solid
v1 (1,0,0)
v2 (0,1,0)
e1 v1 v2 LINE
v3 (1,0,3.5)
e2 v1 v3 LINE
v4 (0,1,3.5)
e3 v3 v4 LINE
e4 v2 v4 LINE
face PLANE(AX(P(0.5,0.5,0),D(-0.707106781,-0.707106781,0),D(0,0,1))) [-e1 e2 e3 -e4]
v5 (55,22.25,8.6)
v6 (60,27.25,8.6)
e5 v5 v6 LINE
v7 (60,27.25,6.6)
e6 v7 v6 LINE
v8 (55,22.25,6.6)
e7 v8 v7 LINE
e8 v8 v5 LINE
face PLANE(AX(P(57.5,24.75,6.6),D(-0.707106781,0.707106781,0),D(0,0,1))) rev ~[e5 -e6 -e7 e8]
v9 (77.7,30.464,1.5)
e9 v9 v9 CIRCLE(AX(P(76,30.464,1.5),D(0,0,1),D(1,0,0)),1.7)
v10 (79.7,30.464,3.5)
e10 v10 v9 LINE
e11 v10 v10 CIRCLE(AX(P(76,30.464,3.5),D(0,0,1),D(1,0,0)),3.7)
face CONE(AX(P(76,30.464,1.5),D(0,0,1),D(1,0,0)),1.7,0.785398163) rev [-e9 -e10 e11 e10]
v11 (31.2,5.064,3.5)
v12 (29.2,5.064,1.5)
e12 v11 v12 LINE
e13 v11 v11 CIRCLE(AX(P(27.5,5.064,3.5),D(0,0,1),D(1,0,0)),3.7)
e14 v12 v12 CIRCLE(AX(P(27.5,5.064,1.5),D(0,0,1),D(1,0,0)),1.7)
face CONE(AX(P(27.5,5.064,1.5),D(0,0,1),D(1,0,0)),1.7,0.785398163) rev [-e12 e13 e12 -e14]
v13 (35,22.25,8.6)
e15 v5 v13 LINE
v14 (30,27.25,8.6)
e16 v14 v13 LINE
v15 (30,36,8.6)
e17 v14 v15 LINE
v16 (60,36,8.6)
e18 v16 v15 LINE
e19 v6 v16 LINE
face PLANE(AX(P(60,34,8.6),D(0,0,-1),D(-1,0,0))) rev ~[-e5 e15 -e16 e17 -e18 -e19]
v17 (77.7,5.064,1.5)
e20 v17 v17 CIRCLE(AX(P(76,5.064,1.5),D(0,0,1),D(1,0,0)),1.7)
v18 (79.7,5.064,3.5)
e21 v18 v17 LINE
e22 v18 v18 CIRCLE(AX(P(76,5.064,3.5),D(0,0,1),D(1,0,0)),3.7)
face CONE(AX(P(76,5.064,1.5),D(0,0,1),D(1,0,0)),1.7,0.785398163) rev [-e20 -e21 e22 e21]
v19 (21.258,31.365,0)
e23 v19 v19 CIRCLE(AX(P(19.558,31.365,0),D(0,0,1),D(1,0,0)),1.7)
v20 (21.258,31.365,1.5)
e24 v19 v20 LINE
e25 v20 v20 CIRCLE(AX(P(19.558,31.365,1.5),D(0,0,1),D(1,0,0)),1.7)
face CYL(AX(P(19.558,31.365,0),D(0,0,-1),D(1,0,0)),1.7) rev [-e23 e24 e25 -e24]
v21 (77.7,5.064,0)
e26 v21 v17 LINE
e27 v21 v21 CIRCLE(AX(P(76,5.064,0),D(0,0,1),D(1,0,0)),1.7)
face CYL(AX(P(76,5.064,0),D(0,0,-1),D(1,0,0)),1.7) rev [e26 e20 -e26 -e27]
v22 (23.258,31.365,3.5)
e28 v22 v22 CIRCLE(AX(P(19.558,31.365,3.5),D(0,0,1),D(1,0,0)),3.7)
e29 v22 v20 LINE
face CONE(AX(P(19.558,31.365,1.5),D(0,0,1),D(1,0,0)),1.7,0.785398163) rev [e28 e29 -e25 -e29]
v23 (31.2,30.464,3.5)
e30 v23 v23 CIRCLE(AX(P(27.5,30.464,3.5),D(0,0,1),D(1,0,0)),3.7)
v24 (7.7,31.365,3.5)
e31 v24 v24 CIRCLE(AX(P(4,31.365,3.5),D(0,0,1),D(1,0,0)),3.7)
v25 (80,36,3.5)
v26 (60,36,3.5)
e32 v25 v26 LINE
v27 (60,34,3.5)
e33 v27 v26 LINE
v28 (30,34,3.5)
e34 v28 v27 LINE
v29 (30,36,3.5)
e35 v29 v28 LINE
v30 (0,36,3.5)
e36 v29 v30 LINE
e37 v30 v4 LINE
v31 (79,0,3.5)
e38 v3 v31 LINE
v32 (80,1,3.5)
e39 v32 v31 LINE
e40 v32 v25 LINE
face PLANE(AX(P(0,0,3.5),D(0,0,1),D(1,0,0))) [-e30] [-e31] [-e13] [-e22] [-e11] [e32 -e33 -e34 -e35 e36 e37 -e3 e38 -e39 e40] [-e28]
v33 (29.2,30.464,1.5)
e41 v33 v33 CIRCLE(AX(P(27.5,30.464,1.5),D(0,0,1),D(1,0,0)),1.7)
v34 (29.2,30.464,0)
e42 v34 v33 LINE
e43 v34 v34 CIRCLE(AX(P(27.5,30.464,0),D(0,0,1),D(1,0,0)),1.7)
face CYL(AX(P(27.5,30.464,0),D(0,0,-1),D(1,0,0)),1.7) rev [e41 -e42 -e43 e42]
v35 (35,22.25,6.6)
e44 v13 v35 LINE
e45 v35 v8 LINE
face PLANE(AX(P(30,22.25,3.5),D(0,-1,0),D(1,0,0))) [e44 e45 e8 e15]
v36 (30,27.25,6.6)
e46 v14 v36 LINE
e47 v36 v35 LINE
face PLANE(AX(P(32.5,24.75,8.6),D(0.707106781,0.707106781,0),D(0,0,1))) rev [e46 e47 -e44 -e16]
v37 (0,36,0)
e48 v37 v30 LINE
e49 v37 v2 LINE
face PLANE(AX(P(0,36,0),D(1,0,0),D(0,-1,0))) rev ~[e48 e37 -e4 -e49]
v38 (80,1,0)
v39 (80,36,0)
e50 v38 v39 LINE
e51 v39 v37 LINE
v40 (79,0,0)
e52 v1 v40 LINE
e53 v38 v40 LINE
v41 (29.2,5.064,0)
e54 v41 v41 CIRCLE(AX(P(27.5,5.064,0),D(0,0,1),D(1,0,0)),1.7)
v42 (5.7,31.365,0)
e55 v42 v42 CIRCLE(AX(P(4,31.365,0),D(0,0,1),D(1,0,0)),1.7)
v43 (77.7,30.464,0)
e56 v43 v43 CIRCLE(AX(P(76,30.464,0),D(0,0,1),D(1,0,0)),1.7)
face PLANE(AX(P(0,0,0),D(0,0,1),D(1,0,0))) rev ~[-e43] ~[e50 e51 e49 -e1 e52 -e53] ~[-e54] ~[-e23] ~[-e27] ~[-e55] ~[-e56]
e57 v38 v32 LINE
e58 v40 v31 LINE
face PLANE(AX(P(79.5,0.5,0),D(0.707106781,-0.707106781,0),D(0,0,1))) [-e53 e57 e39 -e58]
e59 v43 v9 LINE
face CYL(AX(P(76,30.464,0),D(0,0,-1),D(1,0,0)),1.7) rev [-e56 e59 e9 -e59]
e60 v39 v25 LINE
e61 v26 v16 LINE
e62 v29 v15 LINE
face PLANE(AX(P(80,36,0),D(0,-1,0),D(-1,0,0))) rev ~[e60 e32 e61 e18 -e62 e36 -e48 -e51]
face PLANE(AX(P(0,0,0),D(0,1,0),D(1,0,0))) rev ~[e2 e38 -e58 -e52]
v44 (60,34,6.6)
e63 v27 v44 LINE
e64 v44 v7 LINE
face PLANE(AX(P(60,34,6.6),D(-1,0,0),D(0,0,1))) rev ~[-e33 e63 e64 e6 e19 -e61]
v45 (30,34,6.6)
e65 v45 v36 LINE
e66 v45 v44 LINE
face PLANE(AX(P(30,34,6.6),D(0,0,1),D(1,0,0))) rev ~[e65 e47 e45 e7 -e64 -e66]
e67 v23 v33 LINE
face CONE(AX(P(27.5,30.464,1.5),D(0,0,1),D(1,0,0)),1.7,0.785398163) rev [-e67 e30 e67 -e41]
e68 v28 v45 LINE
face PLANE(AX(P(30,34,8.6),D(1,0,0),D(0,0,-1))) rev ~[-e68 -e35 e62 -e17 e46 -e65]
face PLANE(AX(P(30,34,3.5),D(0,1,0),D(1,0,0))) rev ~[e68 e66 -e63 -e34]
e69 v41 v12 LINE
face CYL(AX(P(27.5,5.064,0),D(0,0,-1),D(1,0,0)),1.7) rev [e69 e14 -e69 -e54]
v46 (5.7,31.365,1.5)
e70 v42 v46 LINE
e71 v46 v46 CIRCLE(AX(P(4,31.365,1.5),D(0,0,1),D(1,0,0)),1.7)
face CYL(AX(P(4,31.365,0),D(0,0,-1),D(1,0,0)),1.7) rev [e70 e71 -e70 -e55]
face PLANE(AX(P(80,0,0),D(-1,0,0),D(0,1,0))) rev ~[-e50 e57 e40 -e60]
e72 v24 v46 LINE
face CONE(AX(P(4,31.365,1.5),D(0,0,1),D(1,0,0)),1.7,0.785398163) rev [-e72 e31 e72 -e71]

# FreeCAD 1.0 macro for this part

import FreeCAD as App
import Part
import Sketcher
Q = App.Units.Quantity


def edges_at(feature, points):
    """Names of the edges that pass closest to the given points."""
    edges = feature.Shape.Edges
    near = lambda p: min(range(len(edges)), key=lambda i: edges[i].distToShape(Part.Vertex(*p))[0])
    return sorted({f"Edge{near(p) + 1}" for p in points})

doc = App.newDocument("Part")
body = doc.addObject("PartDesign::Body", "Body")

sketch1 = doc.addObject("Sketcher::SketchObject", "Sketch")
body.addObject(sketch1)
sketch1.AttachmentSupport = (doc.XY_Plane, [""])
sketch1.MapMode = "FlatFace"
sketch1.addGeometry(Part.LineSegment(App.Vector(0, 36, 0), App.Vector(0, 0, 0)), False)
sketch1.addGeometry(Part.LineSegment(App.Vector(0, 0, 0), App.Vector(80, 0, 0)), False)
sketch1.addGeometry(Part.LineSegment(App.Vector(80, 0, 0), App.Vector(80, 36, 0)), False)
sketch1.addGeometry(Part.LineSegment(App.Vector(80, 36, 0), App.Vector(0, 36, 0)), False)
sketch1.addGeometry(Part.Circle(App.Vector(27.5, 5.064, 0), App.Vector(0, 0, 1), 1.7), False)
sketch1.addGeometry(Part.Circle(App.Vector(76, 5.064, 0), App.Vector(0, 0, 1), 1.7), False)
sketch1.addGeometry(Part.Circle(App.Vector(4, 31.365, 0), App.Vector(0, 0, 1), 1.7), False)
sketch1.addGeometry(Part.Circle(App.Vector(19.558, 31.365, 0), App.Vector(0, 0, 1), 1.7), False)
sketch1.addGeometry(Part.Circle(App.Vector(27.5, 30.464, 0), App.Vector(0, 0, 1), 1.7), False)
sketch1.addGeometry(Part.Circle(App.Vector(76, 30.464, 0), App.Vector(0, 0, 1), 1.7), False)
sketch1.addConstraint(Sketcher.Constraint("Coincident", 0, 2, 1, 1))
sketch1.addConstraint(Sketcher.Constraint("Coincident", 1, 2, 2, 1))
sketch1.addConstraint(Sketcher.Constraint("Coincident", 2, 2, 3, 1))
sketch1.addConstraint(Sketcher.Constraint("Coincident", 3, 2, 0, 1))
sketch1.addConstraint(Sketcher.Constraint("Vertical", 0))
sketch1.addConstraint(Sketcher.Constraint("Horizontal", 1))
sketch1.addConstraint(Sketcher.Constraint("Vertical", 2))
sketch1.addConstraint(Sketcher.Constraint("Horizontal", 3))
sketch1.addConstraint(Sketcher.Constraint("Coincident", 0, 2, -1, 1))
sketch1.addConstraint(Sketcher.Constraint("Equal", 4, 5))
sketch1.addConstraint(Sketcher.Constraint("Equal", 5, 6))
sketch1.addConstraint(Sketcher.Constraint("Equal", 6, 7))
sketch1.addConstraint(Sketcher.Constraint("Equal", 7, 8))
sketch1.addConstraint(Sketcher.Constraint("Equal", 8, 9))
sketch1.addConstraint(Sketcher.Constraint("Horizontal", 4, 3, 5, 3))
sketch1.addConstraint(Sketcher.Constraint("Horizontal", 6, 3, 7, 3))
sketch1.addConstraint(Sketcher.Constraint("Horizontal", 8, 3, 9, 3))
sketch1.addConstraint(Sketcher.Constraint("Vertical", 4, 3, 8, 3))
sketch1.addConstraint(Sketcher.Constraint("Vertical", 5, 3, 9, 3))
sketch1.addConstraint(Sketcher.Constraint("Diameter", 4, Q("3.4 mm")))
sketch1.addConstraint(Sketcher.Constraint("DistanceX", 1, 1, 1, 2, Q("80 mm")))
sketch1.addConstraint(Sketcher.Constraint("DistanceY", 0, 2, 0, 1, Q("36 mm")))
sketch1.addConstraint(Sketcher.Constraint("DistanceX", -1, 1, 6, 3, Q("4 mm")))
sketch1.addConstraint(Sketcher.Constraint("DistanceX", 5, 3, 1, 2, Q("4 mm")))
sketch1.addConstraint(Sketcher.Constraint("DistanceX", 4, 3, 5, 3, Q("48.5 mm")))
sketch1.addConstraint(Sketcher.Constraint("DistanceY", 4, 3, 8, 3, Q("25.4 mm")))
sketch1.addConstraint(Sketcher.Constraint("DistanceX", 6, 3, 7, 3, Q("15.558 mm")))
sketch1.addConstraint(Sketcher.Constraint("DistanceY", 9, 3, 2, 2, Q("5.536 mm")))
sketch1.addConstraint(Sketcher.Constraint("DistanceY", 7, 3, 2, 2, Q("4.635 mm")))
pad1 = doc.addObject("PartDesign::Pad", "Pad")
body.addObject(pad1)
pad1.Profile = sketch1
pad1.Length = 3.5

sketch2 = doc.addObject("Sketcher::SketchObject", "Sketch001")
body.addObject(sketch2)
sketch2.AttachmentSupport = (doc.XY_Plane, [""])
sketch2.MapMode = "FlatFace"
sketch2.AttachmentOffset = App.Placement(App.Vector(0, 0, 3.5), App.Rotation())
sketch2.addGeometry(Part.LineSegment(App.Vector(30, 36, 0), App.Vector(30, 34, 0)), False)
sketch2.addGeometry(Part.LineSegment(App.Vector(30, 34, 0), App.Vector(60, 34, 0)), False)
sketch2.addGeometry(Part.LineSegment(App.Vector(60, 34, 0), App.Vector(60, 36, 0)), False)
sketch2.addGeometry(Part.LineSegment(App.Vector(60, 36, 0), App.Vector(30, 36, 0)), False)
sketch2.addConstraint(Sketcher.Constraint("Coincident", 0, 2, 1, 1))
sketch2.addConstraint(Sketcher.Constraint("Coincident", 1, 2, 2, 1))
sketch2.addConstraint(Sketcher.Constraint("Coincident", 2, 2, 3, 1))
sketch2.addConstraint(Sketcher.Constraint("Coincident", 3, 2, 0, 1))
sketch2.addConstraint(Sketcher.Constraint("Vertical", 0))
sketch2.addConstraint(Sketcher.Constraint("Horizontal", 1))
sketch2.addConstraint(Sketcher.Constraint("Vertical", 2))
sketch2.addConstraint(Sketcher.Constraint("Horizontal", 3))
sketch2.addConstraint(Sketcher.Constraint("DistanceX", 1, 1, 1, 2, Q("30 mm")))
sketch2.addConstraint(Sketcher.Constraint("DistanceY", 0, 2, 0, 1, Q("2 mm")))
sketch2.addConstraint(Sketcher.Constraint("DistanceX", -1, 1, 0, 2, Q("30 mm")))
sketch2.addConstraint(Sketcher.Constraint("DistanceY", -1, 1, 0, 2, Q("34 mm")))
pad2 = doc.addObject("PartDesign::Pad", "Pad001")
body.addObject(pad2)
pad2.Profile = sketch2
pad2.Length = 5.1

sketch3 = doc.addObject("Sketcher::SketchObject", "Sketch002")
body.addObject(sketch3)
sketch3.AttachmentSupport = (doc.XZ_Plane, [""])
sketch3.MapMode = "FlatFace"
sketch3.AttachmentOffset = App.Placement(App.Vector(0, 0, -34), App.Rotation())
sketch3.addGeometry(Part.LineSegment(App.Vector(30, 8.6, 0), App.Vector(30, 6.6, 0)), False)
sketch3.addGeometry(Part.LineSegment(App.Vector(30, 6.6, 0), App.Vector(60, 6.6, 0)), False)
sketch3.addGeometry(Part.LineSegment(App.Vector(60, 6.6, 0), App.Vector(60, 8.6, 0)), False)
sketch3.addGeometry(Part.LineSegment(App.Vector(60, 8.6, 0), App.Vector(30, 8.6, 0)), False)
sketch3.addConstraint(Sketcher.Constraint("Coincident", 0, 2, 1, 1))
sketch3.addConstraint(Sketcher.Constraint("Coincident", 1, 2, 2, 1))
sketch3.addConstraint(Sketcher.Constraint("Coincident", 2, 2, 3, 1))
sketch3.addConstraint(Sketcher.Constraint("Coincident", 3, 2, 0, 1))
sketch3.addConstraint(Sketcher.Constraint("Vertical", 0))
sketch3.addConstraint(Sketcher.Constraint("Horizontal", 1))
sketch3.addConstraint(Sketcher.Constraint("Vertical", 2))
sketch3.addConstraint(Sketcher.Constraint("Horizontal", 3))
sketch3.addConstraint(Sketcher.Constraint("DistanceX", 1, 1, 1, 2, Q("30 mm")))
sketch3.addConstraint(Sketcher.Constraint("DistanceY", 0, 2, 0, 1, Q("2 mm")))
sketch3.addConstraint(Sketcher.Constraint("DistanceX", -1, 1, 0, 2, Q("30 mm")))
sketch3.addConstraint(Sketcher.Constraint("DistanceY", -1, 1, 0, 2, Q("6.6 mm")))
pad3 = doc.addObject("PartDesign::Pad", "Pad002")
body.addObject(pad3)
pad3.Profile = sketch3
pad3.Length = 11.75
doc.recompute()

chamfer = doc.addObject("PartDesign::Chamfer", "Chamfer")
body.addObject(chamfer)
chamfer.Base = (pad3, edges_at(pad3, [(30, 22.25, 7.6), (60, 22.25, 7.6)]))
chamfer.Size = 5
doc.recompute()

chamfer2 = doc.addObject("PartDesign::Chamfer", "Chamfer001")
body.addObject(chamfer2)
chamfer2.Base = (chamfer, edges_at(chamfer, [
    (25.8, 30.464, 3.5),
    (25.8, 5.064, 3.5),
    (74.3, 5.064, 3.5),
    (74.3, 30.464, 3.5),
    (2.3, 31.365, 3.5),
    (17.858, 31.365, 3.5),
]))
chamfer2.Size = 2
doc.recompute()

chamfer3 = doc.addObject("PartDesign::Chamfer", "Chamfer002")
body.addObject(chamfer3)
chamfer3.Base = (chamfer2, edges_at(chamfer2, [(0, 0, 1.75), (80, 0, 1.75)]))
chamfer3.Size = 1

doc.recompute()
